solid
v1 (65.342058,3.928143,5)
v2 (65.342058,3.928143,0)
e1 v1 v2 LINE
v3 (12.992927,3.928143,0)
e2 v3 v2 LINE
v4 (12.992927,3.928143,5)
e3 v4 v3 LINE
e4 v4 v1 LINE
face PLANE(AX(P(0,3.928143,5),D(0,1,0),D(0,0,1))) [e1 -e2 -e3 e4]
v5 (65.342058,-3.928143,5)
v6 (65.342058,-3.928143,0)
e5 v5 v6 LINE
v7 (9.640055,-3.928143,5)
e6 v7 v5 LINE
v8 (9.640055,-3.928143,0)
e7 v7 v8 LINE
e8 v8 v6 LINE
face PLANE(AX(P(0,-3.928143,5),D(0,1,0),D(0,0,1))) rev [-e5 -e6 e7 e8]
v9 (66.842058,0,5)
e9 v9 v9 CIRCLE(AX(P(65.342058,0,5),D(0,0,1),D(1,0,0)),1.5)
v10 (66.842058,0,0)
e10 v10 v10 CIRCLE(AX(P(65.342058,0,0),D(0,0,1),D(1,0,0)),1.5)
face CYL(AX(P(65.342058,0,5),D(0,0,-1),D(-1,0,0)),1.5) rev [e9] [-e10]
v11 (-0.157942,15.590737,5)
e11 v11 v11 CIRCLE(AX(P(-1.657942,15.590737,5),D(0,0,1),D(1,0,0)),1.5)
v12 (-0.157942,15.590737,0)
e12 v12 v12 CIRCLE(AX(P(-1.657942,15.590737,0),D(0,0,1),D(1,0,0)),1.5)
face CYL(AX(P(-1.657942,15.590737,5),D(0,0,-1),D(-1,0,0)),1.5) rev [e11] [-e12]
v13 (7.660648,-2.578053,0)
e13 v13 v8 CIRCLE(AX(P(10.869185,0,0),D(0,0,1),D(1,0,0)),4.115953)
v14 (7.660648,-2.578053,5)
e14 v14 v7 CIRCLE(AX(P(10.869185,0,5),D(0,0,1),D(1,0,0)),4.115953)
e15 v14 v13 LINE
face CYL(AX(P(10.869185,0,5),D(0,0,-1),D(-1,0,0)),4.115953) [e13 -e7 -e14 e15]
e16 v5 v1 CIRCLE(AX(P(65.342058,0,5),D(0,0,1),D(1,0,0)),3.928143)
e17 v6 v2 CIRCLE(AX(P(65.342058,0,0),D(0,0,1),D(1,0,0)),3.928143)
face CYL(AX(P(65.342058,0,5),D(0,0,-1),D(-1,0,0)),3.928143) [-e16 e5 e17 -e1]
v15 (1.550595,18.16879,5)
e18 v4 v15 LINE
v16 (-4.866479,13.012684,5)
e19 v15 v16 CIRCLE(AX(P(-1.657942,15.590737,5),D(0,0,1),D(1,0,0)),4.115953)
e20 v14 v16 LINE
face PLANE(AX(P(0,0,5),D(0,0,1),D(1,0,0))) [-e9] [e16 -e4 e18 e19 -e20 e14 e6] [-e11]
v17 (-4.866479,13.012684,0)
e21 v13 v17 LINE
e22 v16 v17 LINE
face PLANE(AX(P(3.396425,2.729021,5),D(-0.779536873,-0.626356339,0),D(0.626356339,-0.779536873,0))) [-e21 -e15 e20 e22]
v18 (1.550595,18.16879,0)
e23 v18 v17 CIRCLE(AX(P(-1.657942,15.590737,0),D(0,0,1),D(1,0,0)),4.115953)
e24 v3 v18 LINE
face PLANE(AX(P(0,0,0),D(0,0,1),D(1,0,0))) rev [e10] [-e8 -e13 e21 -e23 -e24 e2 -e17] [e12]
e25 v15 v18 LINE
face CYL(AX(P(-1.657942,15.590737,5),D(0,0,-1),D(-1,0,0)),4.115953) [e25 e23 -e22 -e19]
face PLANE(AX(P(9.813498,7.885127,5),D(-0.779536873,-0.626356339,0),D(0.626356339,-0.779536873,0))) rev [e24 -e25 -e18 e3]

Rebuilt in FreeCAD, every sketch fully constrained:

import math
import FreeCAD as App
import Part
import Sketcher
Q = App.Units.Quantity

doc = App.newDocument("Part")
body = doc.addObject("PartDesign::Body", "Body")

sketch1 = doc.addObject("Sketcher::SketchObject", "Sketch")
body.addObject(sketch1)
sketch1.AttachmentSupport = (doc.XY_Plane, [""])
sketch1.MapMode = "FlatFace"
sketch1.addGeometry(Part.ArcOfCircle(Part.Circle(App.Vector(-1.657942, 15.590737, 0), App.Vector(0, 0, 1), 4.115953), math.radians(38.781809), math.radians(218.781809)), False)
sketch1.addGeometry(Part.LineSegment(App.Vector(-4.866479, 13.012684, 0), App.Vector(7.660648, -2.578053, 0)), False)
sketch1.addGeometry(Part.ArcOfCircle(Part.Circle(App.Vector(10.869185, 0, 0), App.Vector(0, 0, 1), 4.115953), math.radians(-141.218191), math.radians(-107.375081)), False)
sketch1.addGeometry(Part.LineSegment(App.Vector(9.640055, -3.928143, 0), App.Vector(65.342058, -3.928143, 0)), False)
sketch1.addGeometry(Part.ArcOfCircle(Part.Circle(App.Vector(65.342058, 0, 0), App.Vector(0, 0, 1), 3.928143), math.radians(-90), math.radians(90)), False)
sketch1.addGeometry(Part.LineSegment(App.Vector(65.342058, 3.928143, 0), App.Vector(12.992927, 3.928143, 0)), False)
sketch1.addGeometry(Part.LineSegment(App.Vector(12.992927, 3.928143, 0), App.Vector(4.836296, 14.079544, 0)), False)
sketch1.addGeometry(Part.LineSegment(App.Vector(4.836296, 14.079544, 0), App.Vector(1.550595, 18.16879, 0)), False)
sketch1.addGeometry(Part.Circle(App.Vector(65.342058, 0, 0), App.Vector(0, 0, 1), 1.5), False)
sketch1.addGeometry(Part.Circle(App.Vector(-1.657942, 15.590737, 0), App.Vector(0, 0, 1), 1.5), False)
sketch1.addConstraint(Sketcher.Constraint("Tangent", 0, 2, 1, 1))
sketch1.addConstraint(Sketcher.Constraint("Tangent", 1, 2, 2, 1))
sketch1.addConstraint(Sketcher.Constraint("Coincident", 2, 2, 3, 1))
sketch1.addConstraint(Sketcher.Constraint("Tangent", 3, 2, 4, 1))
sketch1.addConstraint(Sketcher.Constraint("Tangent", 4, 2, 5, 1))
sketch1.addConstraint(Sketcher.Constraint("Coincident", 5, 2, 6, 1))
sketch1.addConstraint(Sketcher.Constraint("Coincident", 6, 2, 7, 1))
sketch1.addConstraint(Sketcher.Constraint("Tangent", 7, 2, 0, 1))
sketch1.addConstraint(Sketcher.Constraint("Horizontal", 3))
sketch1.addConstraint(Sketcher.Constraint("Horizontal", 5))
sketch1.addConstraint(Sketcher.Constraint("Coincident", 8, 3, 4, 3))
sketch1.addConstraint(Sketcher.Constraint("Coincident", 9, 3, 0, 3))
sketch1.addConstraint(Sketcher.Constraint("Equal", 0, 2))
sketch1.addConstraint(Sketcher.Constraint("Equal", 8, 9))
sketch1.addConstraint(Sketcher.Constraint("PointOnObject", 2, 3, -1))
sketch1.addConstraint(Sketcher.Constraint("PointOnObject", 4, 3, -1))
sketch1.addConstraint(Sketcher.Constraint("Parallel", 1, 6))
sketch1.addConstraint(Sketcher.Constraint("Parallel", 6, 7))
sketch1.addConstraint(Sketcher.Constraint("Diameter", 8, Q("3 mm")))
sketch1.addConstraint(Sketcher.Constraint("Distance", 1, Q("20 mm")))
sketch1.addConstraint(Sketcher.Constraint("DistanceX", 0, 3, 4, 3, Q("67 mm")))
sketch1.addConstraint(Sketcher.Constraint("Radius", 0, Q("4.115953 mm")))
sketch1.addConstraint(Sketcher.Constraint("Radius", 4, Q("3.928143 mm")))
sketch1.addConstraint(Sketcher.Constraint("DistanceX", 5, 2, 5, 1, Q("52.349131 mm")))
sketch1.addConstraint(Sketcher.Constraint("DistanceY", 5, 2, 6, 2, Q("10.151401 mm")))
sketch1.addConstraint(Sketcher.Constraint("DistanceX", 0, 2, -1, 1, Q("4.866479 mm")))
pad1 = doc.addObject("PartDesign::Pad", "Pad")
body.addObject(pad1)
pad1.Profile = sketch1
pad1.Length = 5

doc.recompute()
